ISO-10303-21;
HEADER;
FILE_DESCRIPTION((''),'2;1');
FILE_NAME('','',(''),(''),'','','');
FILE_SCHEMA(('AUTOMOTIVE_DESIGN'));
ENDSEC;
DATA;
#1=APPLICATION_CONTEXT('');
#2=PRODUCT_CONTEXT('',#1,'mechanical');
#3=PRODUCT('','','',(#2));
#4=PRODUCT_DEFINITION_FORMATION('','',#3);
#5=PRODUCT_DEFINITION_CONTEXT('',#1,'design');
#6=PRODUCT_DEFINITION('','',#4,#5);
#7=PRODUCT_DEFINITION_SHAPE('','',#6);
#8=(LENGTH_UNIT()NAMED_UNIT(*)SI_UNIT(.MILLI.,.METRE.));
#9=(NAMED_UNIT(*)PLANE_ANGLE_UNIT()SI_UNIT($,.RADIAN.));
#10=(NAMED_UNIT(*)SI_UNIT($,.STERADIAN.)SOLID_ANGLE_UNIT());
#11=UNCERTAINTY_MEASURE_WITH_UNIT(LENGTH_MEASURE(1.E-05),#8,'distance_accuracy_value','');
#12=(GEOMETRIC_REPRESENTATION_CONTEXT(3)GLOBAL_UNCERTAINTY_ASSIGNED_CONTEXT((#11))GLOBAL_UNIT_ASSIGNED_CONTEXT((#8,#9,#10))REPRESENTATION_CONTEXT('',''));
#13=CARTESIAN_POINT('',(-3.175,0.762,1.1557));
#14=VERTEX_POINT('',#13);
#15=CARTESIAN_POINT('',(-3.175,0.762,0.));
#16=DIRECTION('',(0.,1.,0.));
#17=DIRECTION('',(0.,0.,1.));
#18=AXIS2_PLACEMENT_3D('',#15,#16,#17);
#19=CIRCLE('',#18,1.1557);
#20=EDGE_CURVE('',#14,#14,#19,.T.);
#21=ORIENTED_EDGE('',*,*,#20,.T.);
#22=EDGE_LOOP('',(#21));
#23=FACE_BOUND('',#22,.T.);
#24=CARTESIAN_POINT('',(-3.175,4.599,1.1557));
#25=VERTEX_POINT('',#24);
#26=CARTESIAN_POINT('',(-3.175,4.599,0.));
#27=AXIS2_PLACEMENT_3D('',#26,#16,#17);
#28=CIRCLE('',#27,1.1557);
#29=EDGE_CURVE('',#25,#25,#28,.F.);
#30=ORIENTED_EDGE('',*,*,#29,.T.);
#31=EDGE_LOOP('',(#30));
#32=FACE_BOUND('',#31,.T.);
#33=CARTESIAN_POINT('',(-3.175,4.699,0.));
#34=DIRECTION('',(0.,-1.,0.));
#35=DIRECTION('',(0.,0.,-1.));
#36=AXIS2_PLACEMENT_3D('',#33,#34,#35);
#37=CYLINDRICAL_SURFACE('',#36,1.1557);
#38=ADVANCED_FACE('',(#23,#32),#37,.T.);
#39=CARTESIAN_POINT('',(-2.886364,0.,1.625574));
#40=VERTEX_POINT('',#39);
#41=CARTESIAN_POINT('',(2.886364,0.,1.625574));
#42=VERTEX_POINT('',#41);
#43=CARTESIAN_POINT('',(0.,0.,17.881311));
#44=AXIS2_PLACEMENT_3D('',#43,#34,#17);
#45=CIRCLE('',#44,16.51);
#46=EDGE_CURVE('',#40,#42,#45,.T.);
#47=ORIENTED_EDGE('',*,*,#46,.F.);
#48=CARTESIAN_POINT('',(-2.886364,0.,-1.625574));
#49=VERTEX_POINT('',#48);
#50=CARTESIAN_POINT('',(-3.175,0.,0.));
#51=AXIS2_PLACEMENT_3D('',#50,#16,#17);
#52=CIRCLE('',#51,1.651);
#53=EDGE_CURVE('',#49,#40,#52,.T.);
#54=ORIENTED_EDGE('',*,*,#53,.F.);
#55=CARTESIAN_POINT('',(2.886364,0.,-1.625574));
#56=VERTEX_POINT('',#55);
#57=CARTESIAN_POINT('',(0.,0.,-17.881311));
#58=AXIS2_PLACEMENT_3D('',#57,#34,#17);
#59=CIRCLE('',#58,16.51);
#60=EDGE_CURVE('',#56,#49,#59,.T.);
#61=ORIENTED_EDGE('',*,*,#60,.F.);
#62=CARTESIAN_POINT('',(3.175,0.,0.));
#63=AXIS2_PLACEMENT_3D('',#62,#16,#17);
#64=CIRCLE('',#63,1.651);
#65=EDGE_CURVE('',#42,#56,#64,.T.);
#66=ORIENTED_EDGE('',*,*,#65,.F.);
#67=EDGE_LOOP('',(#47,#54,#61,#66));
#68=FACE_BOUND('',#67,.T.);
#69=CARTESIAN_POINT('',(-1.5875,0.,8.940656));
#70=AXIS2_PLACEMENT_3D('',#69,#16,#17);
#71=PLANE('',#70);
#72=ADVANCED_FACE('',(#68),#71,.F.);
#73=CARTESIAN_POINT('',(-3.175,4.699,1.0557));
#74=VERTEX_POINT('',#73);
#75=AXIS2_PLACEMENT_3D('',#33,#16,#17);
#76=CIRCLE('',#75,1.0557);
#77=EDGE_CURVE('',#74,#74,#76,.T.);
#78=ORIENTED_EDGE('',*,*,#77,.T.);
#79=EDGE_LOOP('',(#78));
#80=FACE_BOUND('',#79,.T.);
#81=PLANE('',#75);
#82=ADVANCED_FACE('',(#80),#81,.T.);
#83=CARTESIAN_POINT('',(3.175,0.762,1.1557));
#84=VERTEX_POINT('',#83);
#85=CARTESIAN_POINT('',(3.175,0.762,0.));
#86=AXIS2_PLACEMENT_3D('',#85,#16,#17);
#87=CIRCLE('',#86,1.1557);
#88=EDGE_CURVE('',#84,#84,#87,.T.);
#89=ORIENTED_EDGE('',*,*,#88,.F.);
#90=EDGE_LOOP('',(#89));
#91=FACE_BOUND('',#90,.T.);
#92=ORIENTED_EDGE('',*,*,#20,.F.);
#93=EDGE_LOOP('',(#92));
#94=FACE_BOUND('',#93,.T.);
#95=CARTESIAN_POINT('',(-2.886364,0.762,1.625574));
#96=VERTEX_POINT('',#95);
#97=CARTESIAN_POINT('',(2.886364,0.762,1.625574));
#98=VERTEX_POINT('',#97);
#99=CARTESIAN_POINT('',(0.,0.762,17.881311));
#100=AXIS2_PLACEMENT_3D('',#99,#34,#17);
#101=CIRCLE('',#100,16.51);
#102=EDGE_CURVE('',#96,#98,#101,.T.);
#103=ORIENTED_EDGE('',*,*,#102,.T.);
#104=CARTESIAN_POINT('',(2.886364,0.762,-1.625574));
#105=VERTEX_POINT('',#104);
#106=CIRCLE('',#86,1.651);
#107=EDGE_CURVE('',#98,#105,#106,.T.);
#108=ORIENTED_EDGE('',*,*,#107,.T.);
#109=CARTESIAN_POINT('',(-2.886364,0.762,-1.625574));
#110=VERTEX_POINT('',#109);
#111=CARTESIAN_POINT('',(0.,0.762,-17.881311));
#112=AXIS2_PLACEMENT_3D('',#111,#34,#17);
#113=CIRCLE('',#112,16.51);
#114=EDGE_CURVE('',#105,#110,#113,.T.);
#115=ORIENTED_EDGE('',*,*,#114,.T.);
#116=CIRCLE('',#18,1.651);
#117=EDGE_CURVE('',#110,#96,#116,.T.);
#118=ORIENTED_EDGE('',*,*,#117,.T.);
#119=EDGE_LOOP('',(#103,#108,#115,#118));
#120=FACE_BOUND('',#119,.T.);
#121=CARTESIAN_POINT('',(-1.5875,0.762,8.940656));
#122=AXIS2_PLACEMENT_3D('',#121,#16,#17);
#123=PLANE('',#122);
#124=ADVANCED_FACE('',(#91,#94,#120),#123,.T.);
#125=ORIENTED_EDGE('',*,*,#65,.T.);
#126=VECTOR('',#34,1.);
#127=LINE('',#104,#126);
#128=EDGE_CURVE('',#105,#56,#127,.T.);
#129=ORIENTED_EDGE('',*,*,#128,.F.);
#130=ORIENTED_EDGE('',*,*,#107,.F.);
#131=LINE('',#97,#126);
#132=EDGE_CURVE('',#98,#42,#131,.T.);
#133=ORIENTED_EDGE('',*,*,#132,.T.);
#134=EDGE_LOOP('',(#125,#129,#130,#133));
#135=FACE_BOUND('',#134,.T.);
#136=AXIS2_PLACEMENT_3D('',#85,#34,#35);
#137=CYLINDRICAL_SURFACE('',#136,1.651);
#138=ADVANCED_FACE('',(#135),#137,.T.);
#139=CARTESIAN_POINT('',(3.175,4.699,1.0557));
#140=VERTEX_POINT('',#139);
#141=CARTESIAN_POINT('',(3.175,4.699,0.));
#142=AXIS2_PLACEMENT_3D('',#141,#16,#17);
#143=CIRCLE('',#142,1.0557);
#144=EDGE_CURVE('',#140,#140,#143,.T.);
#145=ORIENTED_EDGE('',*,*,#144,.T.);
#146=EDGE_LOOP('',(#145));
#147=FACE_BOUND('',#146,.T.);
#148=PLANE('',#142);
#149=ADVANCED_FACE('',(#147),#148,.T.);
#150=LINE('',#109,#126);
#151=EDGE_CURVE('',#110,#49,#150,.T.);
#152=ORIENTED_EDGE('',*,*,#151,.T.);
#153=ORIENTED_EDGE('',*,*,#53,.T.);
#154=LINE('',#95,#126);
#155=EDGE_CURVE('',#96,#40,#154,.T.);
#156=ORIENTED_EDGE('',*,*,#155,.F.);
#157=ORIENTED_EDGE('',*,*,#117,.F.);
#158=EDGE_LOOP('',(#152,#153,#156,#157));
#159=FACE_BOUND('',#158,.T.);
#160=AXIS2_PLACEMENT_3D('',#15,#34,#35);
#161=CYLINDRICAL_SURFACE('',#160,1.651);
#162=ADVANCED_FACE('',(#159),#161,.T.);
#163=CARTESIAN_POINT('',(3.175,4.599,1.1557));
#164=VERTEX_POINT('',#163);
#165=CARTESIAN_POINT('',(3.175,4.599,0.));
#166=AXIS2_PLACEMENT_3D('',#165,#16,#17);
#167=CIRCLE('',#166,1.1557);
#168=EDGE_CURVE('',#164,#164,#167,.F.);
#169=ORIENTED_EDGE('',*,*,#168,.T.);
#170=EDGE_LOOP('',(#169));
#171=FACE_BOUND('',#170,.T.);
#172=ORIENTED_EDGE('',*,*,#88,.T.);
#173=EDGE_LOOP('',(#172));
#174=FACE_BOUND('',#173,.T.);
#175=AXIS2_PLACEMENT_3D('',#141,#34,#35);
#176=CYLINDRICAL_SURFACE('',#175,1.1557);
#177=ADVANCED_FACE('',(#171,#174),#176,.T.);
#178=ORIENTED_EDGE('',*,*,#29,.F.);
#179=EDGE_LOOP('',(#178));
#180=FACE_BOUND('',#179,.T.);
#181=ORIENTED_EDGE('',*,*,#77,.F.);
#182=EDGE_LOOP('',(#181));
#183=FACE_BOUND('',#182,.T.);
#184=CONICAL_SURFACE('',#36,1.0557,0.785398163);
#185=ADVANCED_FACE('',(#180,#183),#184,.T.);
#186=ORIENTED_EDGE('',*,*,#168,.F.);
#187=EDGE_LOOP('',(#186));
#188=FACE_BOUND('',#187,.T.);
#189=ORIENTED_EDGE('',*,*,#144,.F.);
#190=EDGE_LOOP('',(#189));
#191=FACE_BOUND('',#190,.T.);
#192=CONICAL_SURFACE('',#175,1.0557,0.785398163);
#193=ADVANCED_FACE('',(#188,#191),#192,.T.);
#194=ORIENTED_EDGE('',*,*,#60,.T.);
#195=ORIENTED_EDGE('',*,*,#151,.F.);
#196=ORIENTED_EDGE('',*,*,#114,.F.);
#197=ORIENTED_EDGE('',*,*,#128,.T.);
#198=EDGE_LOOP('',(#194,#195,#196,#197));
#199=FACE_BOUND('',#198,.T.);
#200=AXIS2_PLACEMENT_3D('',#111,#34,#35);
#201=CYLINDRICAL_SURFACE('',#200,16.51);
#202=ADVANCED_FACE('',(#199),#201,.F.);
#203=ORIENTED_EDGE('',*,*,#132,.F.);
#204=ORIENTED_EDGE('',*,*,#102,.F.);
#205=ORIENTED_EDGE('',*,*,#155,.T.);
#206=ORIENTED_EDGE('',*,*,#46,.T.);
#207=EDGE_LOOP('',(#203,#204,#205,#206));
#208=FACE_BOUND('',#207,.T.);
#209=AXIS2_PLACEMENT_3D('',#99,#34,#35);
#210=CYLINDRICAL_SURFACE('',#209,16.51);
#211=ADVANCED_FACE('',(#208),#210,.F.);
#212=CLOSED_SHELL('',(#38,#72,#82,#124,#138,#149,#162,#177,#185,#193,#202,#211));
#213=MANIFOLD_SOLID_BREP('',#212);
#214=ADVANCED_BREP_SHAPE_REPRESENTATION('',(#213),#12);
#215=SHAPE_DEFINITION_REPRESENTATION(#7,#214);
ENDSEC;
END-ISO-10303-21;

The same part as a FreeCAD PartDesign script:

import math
import FreeCAD as App
import Part
import Sketcher

V = App.Vector
Q = App.Units.Quantity


def edges_at(feature, points):
    """Names of the edges that pass closest to the given points."""
    edges = feature.Shape.Edges
    near = lambda p: min(range(len(edges)), key=lambda i: edges[i].distToShape(Part.Vertex(*p))[0])
    return sorted({f"Edge{near(p) + 1}" for p in points})

doc = App.newDocument("Part")
body = doc.addObject("PartDesign::Body", "Body")

sketch1 = body.newObject("Sketcher::SketchObject", "Sketch")
sketch1.AttachmentSupport = (doc.getObject("XZ_Plane"), [""])
sketch1.MapMode = "FlatFace"
sketch1.addGeometry([
    Part.ArcOfCircle(Part.Circle(V(-3.175, 0, 0), V(0, 0, 1), 1.651), math.radians(79.931515), math.radians(280.068485)),
    Part.ArcOfCircle(Part.Circle(V(0, 17.881311, 0), V(0, 0, 1), 16.51), math.radians(-100.068485), math.radians(-79.931515)),
    Part.ArcOfCircle(Part.Circle(V(3.175, 0, 0), V(0, 0, 1), 1.651), math.radians(-100.068485), math.radians(100.068485)),
    Part.ArcOfCircle(Part.Circle(V(0, -17.881311, 0), V(0, 0, 1), 16.51), math.radians(79.931515), math.radians(100.068485)),
], False)
sketch1.addConstraint([
    Sketcher.Constraint("Tangent", 0, 1, 1, 1),
    Sketcher.Constraint("Tangent", 1, 2, 2, 2),
    Sketcher.Constraint("Tangent", 2, 1, 3, 1),
    Sketcher.Constraint("Tangent", 3, 2, 0, 2),
    Sketcher.Constraint("Equal", 0, 2),
    Sketcher.Constraint("Equal", 1, 3),
    Sketcher.Constraint("Symmetric", 0, 3, 2, 3, -1, 1),
    Sketcher.Constraint("PointOnObject", 0, 3, -1),
    Sketcher.Constraint("Radius", 1, Q("0.65 in")),
    Sketcher.Constraint("Radius", 0, Q("0.065 in")),
    Sketcher.Constraint("DistanceX", 0, 3, 2, 3, Q("0.25 in")),
])
pad1 = body.newObject("PartDesign::Pad", "Pad")
pad1.Profile = sketch1
pad1.Length = Q("0.03 in")
pad1.Reversed = True

sketch2 = body.newObject("Sketcher::SketchObject", "Sketch001")
sketch2.AttachmentSupport = (doc.getObject("XZ_Plane"), [""])
sketch2.MapMode = "FlatFace"
sketch2.AttachmentOffset = App.Placement(V(0, 0, -0.03 * 25.4), App.Rotation())
sketch2.addGeometry([
    Part.Circle(V(-3.175, 0, 0), V(0, 0, 1), 1.1557),
    Part.Circle(V(3.175, 0, 0), V(0, 0, 1), 1.1557),
], False)
sketch2.addConstraint([
    Sketcher.Constraint("Equal", 0, 1),
    Sketcher.Constraint("Symmetric", 0, 3, 1, 3, -1, 1),
    Sketcher.Constraint("PointOnObject", 0, 3, -1),
    Sketcher.Constraint("Diameter", 0, Q("0.091 in")),
    Sketcher.Constraint("DistanceX", 0, 3, 1, 3, Q("0.25 in")),
])
pad2 = body.newObject("PartDesign::Pad", "Pad001")
pad2.Profile = sketch2
pad2.Length = Q("0.155 in")
pad2.Reversed = True
doc.recompute()

chamfer = body.newObject("PartDesign::Chamfer", "Chamfer")
chamfer.Base = (pad2, edges_at(pad2, [(-3.175, 4.699, -1.156), (3.175, 4.699, -1.156)]))
chamfer.Size = 0.1

doc.recompute()
